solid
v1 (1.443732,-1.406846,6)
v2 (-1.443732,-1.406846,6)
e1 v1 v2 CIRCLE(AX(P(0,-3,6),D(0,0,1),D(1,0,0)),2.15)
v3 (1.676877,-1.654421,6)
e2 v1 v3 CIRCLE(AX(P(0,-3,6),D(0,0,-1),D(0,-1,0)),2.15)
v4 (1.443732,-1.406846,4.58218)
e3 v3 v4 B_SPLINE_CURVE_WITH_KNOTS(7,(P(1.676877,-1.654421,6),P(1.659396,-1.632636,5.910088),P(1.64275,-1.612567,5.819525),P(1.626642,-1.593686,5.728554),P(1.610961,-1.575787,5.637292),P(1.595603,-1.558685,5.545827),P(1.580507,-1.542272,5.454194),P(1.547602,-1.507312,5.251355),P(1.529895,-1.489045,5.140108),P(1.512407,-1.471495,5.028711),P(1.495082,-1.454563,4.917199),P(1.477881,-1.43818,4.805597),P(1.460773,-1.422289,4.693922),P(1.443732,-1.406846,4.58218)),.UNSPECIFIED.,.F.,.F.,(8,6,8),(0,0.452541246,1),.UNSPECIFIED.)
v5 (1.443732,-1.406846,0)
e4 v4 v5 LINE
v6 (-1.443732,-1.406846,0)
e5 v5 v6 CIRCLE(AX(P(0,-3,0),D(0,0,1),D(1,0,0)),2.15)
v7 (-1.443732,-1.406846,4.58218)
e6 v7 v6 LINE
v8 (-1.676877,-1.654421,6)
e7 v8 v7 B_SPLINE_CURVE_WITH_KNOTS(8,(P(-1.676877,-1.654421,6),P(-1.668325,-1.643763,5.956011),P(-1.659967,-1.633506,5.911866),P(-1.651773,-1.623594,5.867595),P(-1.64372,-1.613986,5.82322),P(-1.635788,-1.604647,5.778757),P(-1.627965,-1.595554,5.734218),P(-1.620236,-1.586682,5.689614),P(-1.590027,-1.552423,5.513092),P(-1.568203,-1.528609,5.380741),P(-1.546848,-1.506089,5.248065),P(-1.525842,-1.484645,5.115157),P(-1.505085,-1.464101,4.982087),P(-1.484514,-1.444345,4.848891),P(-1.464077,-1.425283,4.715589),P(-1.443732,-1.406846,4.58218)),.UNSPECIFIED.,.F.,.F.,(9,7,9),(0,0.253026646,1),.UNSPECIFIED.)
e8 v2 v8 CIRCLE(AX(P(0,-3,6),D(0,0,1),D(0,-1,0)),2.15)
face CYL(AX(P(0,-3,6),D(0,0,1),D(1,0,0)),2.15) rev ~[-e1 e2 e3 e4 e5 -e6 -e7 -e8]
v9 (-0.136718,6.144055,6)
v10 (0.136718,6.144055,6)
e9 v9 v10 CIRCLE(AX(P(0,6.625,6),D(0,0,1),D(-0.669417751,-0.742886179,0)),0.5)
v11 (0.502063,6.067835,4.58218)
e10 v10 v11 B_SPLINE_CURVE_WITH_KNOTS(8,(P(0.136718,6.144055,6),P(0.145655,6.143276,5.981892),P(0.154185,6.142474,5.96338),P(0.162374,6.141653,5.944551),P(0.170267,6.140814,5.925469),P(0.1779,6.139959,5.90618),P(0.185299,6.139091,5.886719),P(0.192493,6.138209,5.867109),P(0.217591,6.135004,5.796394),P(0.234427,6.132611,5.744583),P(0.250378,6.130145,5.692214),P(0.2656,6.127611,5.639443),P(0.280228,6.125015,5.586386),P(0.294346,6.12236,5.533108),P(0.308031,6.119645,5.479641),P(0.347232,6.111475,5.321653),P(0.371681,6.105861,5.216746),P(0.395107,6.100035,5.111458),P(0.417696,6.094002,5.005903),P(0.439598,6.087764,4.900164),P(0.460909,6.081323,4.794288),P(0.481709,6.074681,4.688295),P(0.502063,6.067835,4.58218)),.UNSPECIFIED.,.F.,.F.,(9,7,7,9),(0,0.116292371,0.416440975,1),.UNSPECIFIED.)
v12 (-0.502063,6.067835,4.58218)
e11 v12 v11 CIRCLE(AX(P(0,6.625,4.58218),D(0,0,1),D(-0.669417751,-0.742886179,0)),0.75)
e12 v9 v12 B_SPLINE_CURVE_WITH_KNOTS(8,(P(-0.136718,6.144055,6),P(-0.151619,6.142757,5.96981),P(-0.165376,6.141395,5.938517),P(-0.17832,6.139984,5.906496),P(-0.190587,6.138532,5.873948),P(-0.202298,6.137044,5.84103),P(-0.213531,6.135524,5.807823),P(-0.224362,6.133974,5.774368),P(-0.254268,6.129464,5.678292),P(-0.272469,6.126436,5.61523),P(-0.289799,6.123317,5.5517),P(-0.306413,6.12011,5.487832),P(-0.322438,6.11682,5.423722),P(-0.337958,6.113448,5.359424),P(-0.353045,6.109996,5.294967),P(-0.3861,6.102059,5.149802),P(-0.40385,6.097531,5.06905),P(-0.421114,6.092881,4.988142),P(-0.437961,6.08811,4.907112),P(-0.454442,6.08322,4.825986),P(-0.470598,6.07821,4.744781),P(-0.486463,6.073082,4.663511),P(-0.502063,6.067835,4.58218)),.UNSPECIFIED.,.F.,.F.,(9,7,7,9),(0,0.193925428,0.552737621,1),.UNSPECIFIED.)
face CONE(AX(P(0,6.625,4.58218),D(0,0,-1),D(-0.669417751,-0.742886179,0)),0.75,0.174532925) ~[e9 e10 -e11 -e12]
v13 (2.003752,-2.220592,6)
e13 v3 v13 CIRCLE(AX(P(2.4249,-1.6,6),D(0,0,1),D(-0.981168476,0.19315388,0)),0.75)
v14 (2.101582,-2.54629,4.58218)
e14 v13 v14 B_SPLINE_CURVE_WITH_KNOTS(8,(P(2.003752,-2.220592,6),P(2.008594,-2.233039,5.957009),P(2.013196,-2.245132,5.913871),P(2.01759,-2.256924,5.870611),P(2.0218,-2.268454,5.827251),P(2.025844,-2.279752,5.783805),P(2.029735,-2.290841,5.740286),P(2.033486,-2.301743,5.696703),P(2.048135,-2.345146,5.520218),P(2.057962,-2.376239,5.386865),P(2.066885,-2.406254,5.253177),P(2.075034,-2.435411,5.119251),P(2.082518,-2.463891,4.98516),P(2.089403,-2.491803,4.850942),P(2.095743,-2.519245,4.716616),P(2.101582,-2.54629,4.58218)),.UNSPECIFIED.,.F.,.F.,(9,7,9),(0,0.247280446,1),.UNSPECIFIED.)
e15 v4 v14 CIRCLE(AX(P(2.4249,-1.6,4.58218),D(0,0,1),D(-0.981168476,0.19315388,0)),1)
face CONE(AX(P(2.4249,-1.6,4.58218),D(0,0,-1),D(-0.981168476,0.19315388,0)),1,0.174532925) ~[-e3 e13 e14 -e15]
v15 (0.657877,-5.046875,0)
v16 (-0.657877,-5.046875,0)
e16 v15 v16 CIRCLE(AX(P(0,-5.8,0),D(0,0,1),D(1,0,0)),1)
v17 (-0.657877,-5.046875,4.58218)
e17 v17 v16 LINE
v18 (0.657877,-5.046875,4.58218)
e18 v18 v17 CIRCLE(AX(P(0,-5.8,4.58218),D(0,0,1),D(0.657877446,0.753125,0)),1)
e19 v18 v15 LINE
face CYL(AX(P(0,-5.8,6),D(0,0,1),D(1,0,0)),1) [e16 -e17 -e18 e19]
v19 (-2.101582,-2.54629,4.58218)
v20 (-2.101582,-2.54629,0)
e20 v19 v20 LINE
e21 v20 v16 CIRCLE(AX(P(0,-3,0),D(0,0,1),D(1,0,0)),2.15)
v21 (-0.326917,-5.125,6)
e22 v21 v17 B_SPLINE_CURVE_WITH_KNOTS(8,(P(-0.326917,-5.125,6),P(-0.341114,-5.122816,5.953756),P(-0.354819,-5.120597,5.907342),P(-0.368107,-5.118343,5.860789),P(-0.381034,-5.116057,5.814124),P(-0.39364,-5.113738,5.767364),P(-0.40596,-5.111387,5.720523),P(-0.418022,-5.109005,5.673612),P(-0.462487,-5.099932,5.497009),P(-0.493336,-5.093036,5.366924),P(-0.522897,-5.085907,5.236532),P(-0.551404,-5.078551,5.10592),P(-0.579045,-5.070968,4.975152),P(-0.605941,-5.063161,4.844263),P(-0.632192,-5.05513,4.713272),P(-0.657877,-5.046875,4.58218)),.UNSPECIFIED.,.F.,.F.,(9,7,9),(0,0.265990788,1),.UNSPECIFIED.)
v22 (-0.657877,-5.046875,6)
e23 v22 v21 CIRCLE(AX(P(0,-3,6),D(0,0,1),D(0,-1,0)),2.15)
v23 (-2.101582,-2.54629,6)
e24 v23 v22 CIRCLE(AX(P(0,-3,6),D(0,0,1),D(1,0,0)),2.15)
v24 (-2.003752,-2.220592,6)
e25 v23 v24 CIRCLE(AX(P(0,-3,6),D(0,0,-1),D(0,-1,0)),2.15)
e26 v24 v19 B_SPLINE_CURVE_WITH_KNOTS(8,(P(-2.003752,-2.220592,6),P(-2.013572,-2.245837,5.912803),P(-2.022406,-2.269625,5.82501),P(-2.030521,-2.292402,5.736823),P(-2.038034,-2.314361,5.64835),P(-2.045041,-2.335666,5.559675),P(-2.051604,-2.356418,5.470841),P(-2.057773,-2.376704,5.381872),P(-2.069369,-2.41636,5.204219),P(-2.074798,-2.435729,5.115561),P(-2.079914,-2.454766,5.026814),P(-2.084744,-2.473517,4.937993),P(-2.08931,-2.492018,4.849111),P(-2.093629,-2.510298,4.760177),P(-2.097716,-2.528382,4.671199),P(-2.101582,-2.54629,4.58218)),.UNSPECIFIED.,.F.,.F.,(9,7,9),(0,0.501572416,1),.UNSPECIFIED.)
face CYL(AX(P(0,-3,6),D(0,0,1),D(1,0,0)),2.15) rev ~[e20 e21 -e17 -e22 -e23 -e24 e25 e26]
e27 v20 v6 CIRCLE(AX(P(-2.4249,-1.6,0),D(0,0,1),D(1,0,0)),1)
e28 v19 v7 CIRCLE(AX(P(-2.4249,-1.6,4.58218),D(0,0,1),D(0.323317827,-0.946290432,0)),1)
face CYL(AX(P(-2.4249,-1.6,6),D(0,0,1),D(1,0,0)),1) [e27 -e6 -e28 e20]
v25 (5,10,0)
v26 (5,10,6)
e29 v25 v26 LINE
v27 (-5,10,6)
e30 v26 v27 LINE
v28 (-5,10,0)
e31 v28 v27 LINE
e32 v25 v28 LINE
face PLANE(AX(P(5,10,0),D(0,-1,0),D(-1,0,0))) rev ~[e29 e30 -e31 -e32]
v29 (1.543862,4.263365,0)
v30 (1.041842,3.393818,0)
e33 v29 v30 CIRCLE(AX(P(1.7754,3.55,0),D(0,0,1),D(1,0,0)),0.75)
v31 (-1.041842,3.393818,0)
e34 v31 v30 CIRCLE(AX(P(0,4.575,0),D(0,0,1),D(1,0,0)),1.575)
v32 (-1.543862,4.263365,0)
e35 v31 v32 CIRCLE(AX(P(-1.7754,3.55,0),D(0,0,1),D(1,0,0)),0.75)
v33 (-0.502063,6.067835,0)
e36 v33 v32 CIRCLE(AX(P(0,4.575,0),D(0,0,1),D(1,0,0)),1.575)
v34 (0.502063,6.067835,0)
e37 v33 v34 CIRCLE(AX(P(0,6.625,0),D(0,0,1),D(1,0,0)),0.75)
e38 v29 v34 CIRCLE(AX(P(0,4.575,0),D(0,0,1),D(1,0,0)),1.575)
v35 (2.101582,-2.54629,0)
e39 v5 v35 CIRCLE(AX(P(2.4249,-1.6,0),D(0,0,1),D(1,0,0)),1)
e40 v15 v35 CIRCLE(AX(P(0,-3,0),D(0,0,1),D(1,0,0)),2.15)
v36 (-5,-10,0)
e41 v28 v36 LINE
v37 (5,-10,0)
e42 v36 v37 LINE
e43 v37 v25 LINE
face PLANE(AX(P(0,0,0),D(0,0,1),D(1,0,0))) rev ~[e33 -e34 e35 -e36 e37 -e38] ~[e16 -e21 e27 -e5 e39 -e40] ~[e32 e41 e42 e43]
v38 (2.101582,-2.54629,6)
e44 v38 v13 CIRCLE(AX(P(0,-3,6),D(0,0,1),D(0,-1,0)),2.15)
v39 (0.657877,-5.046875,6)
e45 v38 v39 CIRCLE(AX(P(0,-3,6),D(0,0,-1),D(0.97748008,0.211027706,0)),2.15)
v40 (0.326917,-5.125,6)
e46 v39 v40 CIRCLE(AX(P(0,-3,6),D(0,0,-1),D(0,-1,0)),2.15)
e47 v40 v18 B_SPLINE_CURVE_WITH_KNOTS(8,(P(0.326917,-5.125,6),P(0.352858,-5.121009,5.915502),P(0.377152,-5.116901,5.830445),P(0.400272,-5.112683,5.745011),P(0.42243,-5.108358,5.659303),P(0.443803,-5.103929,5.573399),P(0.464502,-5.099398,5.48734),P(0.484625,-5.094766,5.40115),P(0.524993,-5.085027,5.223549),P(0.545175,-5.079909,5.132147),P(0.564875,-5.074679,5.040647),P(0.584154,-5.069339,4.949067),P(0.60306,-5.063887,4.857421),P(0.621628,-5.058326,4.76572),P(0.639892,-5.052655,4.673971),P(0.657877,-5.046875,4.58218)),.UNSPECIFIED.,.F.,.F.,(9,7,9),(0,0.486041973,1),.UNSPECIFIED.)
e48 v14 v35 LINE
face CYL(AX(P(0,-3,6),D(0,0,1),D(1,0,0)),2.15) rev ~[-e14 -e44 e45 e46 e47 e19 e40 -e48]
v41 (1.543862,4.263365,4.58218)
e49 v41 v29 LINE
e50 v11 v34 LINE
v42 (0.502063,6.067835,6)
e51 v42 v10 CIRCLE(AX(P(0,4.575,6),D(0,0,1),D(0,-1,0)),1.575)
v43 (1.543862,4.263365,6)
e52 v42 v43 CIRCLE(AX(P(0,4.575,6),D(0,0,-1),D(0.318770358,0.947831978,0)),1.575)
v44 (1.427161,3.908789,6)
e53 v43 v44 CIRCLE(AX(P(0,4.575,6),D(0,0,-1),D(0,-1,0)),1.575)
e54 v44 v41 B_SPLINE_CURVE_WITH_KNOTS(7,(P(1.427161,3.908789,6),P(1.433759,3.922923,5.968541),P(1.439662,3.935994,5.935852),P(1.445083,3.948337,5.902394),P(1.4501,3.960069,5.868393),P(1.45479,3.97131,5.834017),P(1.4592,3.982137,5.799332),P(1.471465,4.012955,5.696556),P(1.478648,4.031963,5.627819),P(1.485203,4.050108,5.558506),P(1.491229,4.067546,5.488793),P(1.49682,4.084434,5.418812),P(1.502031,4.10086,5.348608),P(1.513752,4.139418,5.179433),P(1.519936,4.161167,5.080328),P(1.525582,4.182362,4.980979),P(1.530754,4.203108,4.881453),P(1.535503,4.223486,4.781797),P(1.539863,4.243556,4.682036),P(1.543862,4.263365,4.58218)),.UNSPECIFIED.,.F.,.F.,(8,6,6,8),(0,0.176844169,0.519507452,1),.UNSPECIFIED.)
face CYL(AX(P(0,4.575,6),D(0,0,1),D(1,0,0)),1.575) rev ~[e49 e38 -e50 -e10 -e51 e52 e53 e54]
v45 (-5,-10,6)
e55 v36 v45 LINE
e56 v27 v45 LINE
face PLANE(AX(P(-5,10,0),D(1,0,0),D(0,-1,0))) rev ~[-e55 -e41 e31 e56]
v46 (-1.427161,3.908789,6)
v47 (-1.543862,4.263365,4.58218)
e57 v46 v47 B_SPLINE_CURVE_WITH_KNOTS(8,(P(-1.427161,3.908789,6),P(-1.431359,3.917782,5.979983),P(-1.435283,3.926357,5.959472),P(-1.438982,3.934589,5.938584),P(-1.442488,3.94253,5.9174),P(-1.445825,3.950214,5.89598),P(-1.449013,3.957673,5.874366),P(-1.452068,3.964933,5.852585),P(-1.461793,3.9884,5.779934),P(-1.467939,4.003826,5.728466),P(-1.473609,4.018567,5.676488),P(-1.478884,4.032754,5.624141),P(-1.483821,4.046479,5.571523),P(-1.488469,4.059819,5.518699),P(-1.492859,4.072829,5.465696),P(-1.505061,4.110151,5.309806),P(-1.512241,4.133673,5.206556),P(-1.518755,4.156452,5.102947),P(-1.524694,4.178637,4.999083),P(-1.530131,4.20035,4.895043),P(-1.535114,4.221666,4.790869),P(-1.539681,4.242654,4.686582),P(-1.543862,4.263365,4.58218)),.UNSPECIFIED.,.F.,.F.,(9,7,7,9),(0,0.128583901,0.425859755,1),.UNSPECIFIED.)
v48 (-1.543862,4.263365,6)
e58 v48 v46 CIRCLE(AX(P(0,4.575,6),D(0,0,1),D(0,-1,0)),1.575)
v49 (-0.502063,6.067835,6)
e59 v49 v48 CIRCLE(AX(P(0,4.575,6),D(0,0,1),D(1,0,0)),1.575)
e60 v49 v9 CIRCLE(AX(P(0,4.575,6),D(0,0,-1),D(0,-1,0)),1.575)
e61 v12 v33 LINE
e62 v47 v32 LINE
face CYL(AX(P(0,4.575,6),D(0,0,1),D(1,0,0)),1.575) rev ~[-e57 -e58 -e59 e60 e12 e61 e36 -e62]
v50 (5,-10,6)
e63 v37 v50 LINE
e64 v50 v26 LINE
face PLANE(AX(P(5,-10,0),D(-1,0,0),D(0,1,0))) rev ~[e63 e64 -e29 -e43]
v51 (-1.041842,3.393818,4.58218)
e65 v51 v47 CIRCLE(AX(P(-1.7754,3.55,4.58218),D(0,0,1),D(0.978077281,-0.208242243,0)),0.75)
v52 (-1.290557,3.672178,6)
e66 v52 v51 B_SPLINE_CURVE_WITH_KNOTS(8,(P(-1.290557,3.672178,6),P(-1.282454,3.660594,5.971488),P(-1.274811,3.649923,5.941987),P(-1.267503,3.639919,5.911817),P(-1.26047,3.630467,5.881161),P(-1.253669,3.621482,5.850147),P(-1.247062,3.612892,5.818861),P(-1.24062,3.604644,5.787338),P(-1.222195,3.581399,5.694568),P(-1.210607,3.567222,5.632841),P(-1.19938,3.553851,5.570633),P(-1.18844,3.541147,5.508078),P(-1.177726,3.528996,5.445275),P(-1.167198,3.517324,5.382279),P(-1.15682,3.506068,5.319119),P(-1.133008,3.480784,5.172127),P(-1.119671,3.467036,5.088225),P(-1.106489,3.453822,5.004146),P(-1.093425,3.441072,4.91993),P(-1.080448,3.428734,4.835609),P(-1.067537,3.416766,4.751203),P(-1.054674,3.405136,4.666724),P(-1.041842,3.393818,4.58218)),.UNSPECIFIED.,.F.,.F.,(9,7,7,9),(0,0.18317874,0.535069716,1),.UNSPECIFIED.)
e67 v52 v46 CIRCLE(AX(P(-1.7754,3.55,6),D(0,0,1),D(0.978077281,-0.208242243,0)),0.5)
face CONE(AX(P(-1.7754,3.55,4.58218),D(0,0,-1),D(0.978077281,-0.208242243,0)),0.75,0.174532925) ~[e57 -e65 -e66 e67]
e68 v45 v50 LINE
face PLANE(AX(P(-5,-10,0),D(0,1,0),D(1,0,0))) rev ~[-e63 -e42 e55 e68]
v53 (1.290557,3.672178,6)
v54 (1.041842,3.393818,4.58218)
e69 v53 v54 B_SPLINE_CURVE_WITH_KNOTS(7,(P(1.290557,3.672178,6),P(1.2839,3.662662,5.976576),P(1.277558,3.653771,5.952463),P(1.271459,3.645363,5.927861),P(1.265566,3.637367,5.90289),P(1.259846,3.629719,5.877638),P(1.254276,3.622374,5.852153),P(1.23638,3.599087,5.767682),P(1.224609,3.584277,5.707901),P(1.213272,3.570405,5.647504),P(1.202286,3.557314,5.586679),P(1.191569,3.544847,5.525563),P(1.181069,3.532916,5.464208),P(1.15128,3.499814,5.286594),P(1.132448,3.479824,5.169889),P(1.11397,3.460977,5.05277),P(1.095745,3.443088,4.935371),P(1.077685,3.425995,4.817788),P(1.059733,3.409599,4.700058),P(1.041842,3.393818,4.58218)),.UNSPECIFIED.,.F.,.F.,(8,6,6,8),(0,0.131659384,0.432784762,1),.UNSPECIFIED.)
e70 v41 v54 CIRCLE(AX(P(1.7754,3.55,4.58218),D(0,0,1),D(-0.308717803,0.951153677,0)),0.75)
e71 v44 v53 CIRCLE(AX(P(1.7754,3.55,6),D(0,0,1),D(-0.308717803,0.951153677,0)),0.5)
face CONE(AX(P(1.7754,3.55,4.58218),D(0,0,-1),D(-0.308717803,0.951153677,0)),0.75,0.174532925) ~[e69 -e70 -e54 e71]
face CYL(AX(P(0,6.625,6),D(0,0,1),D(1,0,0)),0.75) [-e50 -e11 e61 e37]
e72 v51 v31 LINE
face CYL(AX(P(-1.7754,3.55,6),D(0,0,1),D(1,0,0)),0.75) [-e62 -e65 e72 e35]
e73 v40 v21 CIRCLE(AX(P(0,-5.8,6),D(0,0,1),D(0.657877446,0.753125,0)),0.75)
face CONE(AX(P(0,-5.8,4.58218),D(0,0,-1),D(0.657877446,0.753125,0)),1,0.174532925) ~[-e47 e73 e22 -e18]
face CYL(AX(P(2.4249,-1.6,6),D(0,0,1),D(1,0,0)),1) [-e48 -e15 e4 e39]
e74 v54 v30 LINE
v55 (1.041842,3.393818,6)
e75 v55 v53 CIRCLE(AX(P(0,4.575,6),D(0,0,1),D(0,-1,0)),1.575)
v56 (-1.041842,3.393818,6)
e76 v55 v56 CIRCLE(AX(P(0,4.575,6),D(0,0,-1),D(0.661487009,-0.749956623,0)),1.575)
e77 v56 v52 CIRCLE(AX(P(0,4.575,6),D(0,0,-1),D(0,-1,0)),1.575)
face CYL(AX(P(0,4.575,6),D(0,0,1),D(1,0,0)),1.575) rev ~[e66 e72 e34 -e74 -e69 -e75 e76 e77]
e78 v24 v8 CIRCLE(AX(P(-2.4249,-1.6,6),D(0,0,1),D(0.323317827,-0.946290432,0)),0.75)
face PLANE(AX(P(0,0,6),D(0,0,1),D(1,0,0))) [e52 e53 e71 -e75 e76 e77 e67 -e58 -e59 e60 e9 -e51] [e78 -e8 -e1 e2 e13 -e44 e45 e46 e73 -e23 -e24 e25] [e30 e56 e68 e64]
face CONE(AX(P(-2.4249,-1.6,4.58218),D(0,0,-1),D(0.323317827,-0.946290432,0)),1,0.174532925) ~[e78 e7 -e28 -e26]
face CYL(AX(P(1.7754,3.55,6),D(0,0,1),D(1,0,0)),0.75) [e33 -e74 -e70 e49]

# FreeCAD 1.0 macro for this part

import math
import FreeCAD as App
import Part
import Sketcher

V = App.Vector


def edges_at(feature, points):
    """Names of the edges that pass closest to the given points."""
    edges = feature.Shape.Edges
    near = lambda p: min(range(len(edges)), key=lambda i: edges[i].distToShape(Part.Vertex(*p))[0])
    return sorted({f"Edge{near(p) + 1}" for p in points})

doc = App.newDocument("Part")
body = doc.addObject("PartDesign::Body", "Body")

# Sketch on XY plane
sketch1 = body.newObject("Sketcher::SketchObject", "Sketch")
sketch1.AttachmentSupport = (doc.getObject("XY_Plane"), [""])
sketch1.MapMode = "FlatFace"
sketch1.addGeometry([
    Part.LineSegment(V(-5, 10, 0), V(-5, -10, 0)),
    Part.LineSegment(V(-5, -10, 0), V(5, -10, 0)),
    Part.LineSegment(V(5, -10, 0), V(5, 10, 0)),
    Part.LineSegment(V(5, 10, 0), V(-5, 10, 0)),
], False)
sketch1.addConstraint([
    Sketcher.Constraint("Coincident", 0, 2, 1, 1),
    Sketcher.Constraint("Coincident", 1, 2, 2, 1),
    Sketcher.Constraint("Coincident", 2, 2, 3, 1),
    Sketcher.Constraint("Coincident", 3, 2, 0, 1),
    Sketcher.Constraint("Vertical", 0),
    Sketcher.Constraint("Horizontal", 1),
    Sketcher.Constraint("Vertical", 2),
    Sketcher.Constraint("Horizontal", 3),
    Sketcher.Constraint("Symmetric", 0, 2, 2, 2, -1, 1),
    Sketcher.Constraint("DistanceX", 1, 1, 1, 2, 10.0),
    Sketcher.Constraint("DistanceY", 0, 2, 0, 1, 20.0),
])
pad1 = body.newObject("PartDesign::Pad", "Pad")
pad1.Profile = sketch1
pad1.Length = 6

# Sketch on XY plane
sketch2 = body.newObject("Sketcher::SketchObject", "Sketch001")
sketch2.AttachmentSupport = (doc.getObject("XY_Plane"), [""])
sketch2.MapMode = "FlatFace"
sketch2.AttachmentOffset = App.Placement(V(0, 0, 6), App.Rotation())
sketch2.addGeometry([
    Part.ArcOfCircle(Part.Circle(V(0, 4.6, 0), V(0, 0, 1), 1.6), math.radians(-11), math.radians(71)),  # 0
    Part.ArcOfCircle(Part.Circle(V(0, 6.6, 0), V(0, 0, 1), 0.8), math.radians(-132), math.radians(-48)),  # 1
    Part.ArcOfCircle(Part.Circle(V(0, 4.6, 0), V(0, 0, 1), 1.6), math.radians(109), math.radians(191)),  # 2
    Part.ArcOfCircle(Part.Circle(V(-1.8, 3.5, 0), V(0, 0, 1), 0.8), math.radians(-12), math.radians(72)),  # 3
    Part.ArcOfCircle(Part.Circle(V(0, 4.6, 0), V(0, 0, 1), 1.6), math.radians(-131), math.radians(-49)),  # 4
    Part.ArcOfCircle(Part.Circle(V(1.8, 3.5, 0), V(0, 0, 1), 0.8), math.radians(108), math.radians(192)),  # 5
    Part.ArcOfCircle(Part.Circle(V(0, -3, 0), V(0, 0, 1), 2.1), math.radians(-72), math.radians(12)),  # 6
    Part.ArcOfCircle(Part.Circle(V(2.4, -1.6, 0), V(0, 0, 1), 1), math.radians(169), math.radians(251)),  # 7
    Part.ArcOfCircle(Part.Circle(V(0, -3, 0), V(0, 0, 1), 2.1), math.radians(48), math.radians(132)),  # 8
    Part.ArcOfCircle(Part.Circle(V(-2.4, -1.6, 0), V(0, 0, 1), 1), math.radians(-71), math.radians(11)),  # 9
    Part.ArcOfCircle(Part.Circle(V(0, -3, 0), V(0, 0, 1), 2.1), math.radians(168), math.radians(252)),  # 10
    Part.ArcOfCircle(Part.Circle(V(0, -5.8, 0), V(0, 0, 1), 1), math.radians(49), math.radians(131)),  # 11
], False)
sketch2.addConstraint([
    Sketcher.Constraint("Coincident", 0, 2, 1, 2),
    Sketcher.Constraint("Coincident", 1, 1, 2, 1),
    Sketcher.Constraint("Coincident", 2, 2, 3, 2),
    Sketcher.Constraint("Coincident", 3, 1, 4, 1),
    Sketcher.Constraint("Coincident", 4, 2, 5, 2),
    Sketcher.Constraint("Coincident", 5, 1, 0, 1),
    Sketcher.Constraint("Coincident", 6, 2, 7, 2),
    Sketcher.Constraint("Coincident", 7, 1, 8, 1),
    Sketcher.Constraint("Coincident", 8, 2, 9, 2),
    Sketcher.Constraint("Coincident", 9, 1, 10, 1),
    Sketcher.Constraint("Coincident", 10, 2, 11, 2),
    Sketcher.Constraint("Coincident", 11, 1, 6, 1),
    Sketcher.Constraint("Coincident", 2, 3, 0, 3),
    Sketcher.Constraint("Coincident", 4, 3, 0, 3),
    Sketcher.Constraint("Coincident", 8, 3, 6, 3),
    Sketcher.Constraint("Coincident", 10, 3, 6, 3),
    Sketcher.Constraint("Equal", 0, 2),
    Sketcher.Constraint("Equal", 1, 3),
    Sketcher.Constraint("Equal", 2, 4),
    Sketcher.Constraint("Equal", 3, 5),
    Sketcher.Constraint("Equal", 6, 8),
    Sketcher.Constraint("Equal", 7, 9),
    Sketcher.Constraint("Equal", 8, 10),
    Sketcher.Constraint("Equal", 9, 11),
    Sketcher.Constraint("Symmetric", 3, 3, 5, 3, -2),
    Sketcher.Constraint("Symmetric", 7, 3, 9, 3, -2),
    Sketcher.Constraint("Symmetric", 0, 2, 1, 1, -2),
    Sketcher.Constraint("Symmetric", 10, 2, 11, 1, -2),
    Sketcher.Constraint("Radius", 7, 1.0),
    Sketcher.Constraint("Radius", 1, 0.75),
    Sketcher.Constraint("Radius", 6, 2.15),
    Sketcher.Constraint("DistanceY", 6, 3, -1, 1, 3.0),
    Sketcher.Constraint("Radius", 0, 1.575),
    Sketcher.Constraint("DistanceY", 11, 3, 6, 3, 2.8),
    Sketcher.Constraint("DistanceY", 0, 3, 1, 3, 2.05),
    Sketcher.Constraint("DistanceY", 7, 3, -1, 1, 1.6),
    Sketcher.Constraint("DistanceY", -1, 1, 3, 3, 3.55),
    Sketcher.Constraint("DistanceY", -1, 1, 0, 3, 4.575),
    Sketcher.Constraint("DistanceX", -1, 1, 7, 3, 2.425),
    Sketcher.Constraint("DistanceX", 2, 2, 3, 1, 0.502),
])
pocket1 = body.newObject("PartDesign::Pocket", "Pocket")
pocket1.Profile = sketch2
pocket1.Length = 10
doc.recompute()

chamfer = body.newObject("PartDesign::Chamfer", "Chamfer")
chamfer.Base = (pocket1, edges_at(pocket1, [(0, 5.875, 6), (-1.126, 3.925, 6), (1.126, 3.925, 6)]))
chamfer.ChamferType = "Distance and Angle"
chamfer.Size = 0.25
chamfer.Angle = 80
doc.recompute()

chamfer2 = body.newObject("PartDesign::Chamfer", "Chamfer001")
chamfer2.Base = (chamfer, edges_at(chamfer, [(-1.559, -2.1, 6), (1.559, -2.1, 6), (0, -4.8, 6)]))
chamfer2.ChamferType = "Distance and Angle"
chamfer2.Size = 0.25
chamfer2.Angle = 80

doc.recompute()
